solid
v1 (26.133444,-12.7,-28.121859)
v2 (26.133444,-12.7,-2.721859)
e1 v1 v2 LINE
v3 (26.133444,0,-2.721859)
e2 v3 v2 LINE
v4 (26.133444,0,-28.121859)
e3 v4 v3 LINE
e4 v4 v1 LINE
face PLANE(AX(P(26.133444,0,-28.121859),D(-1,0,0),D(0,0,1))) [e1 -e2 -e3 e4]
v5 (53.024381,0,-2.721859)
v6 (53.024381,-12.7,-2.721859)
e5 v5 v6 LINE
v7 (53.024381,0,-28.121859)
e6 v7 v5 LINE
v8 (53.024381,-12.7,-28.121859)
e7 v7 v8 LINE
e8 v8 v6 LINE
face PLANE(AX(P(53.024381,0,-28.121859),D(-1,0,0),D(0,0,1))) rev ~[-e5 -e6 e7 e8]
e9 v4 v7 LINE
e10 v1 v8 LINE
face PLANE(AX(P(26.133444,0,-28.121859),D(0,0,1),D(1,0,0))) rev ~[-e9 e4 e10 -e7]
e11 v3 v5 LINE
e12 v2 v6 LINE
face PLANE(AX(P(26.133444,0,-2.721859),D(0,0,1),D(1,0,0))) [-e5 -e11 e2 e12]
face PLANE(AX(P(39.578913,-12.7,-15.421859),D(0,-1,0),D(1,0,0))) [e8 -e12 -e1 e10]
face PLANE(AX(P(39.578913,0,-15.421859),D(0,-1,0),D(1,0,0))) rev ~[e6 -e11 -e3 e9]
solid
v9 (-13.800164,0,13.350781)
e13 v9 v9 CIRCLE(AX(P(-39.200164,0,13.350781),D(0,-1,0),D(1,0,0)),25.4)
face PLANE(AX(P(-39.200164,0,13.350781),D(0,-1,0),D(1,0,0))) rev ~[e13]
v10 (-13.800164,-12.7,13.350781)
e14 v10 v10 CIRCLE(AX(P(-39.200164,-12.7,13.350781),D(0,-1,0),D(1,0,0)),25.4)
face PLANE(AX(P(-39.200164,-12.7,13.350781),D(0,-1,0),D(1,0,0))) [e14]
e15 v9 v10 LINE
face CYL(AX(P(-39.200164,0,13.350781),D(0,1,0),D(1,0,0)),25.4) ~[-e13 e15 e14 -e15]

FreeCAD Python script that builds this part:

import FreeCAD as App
import Part
import Sketcher
from FreeCAD import Vector
Q = App.Units.Quantity


def add_polygon(sketch, points):
    """Adds a closed chain of lines whose ends are joined by coincident constraints."""
    first, n = sketch.GeometryCount, len(points)
    for a, b in zip(points, points[1:] + points[:1]):
        sketch.addGeometry(Part.LineSegment(App.Vector(*a, 0), App.Vector(*b, 0)), False)
    for i in range(n):
        sketch.addConstraint(Sketcher.Constraint("Coincident", first + i, 2, first + (i + 1) % n, 1))

doc = App.newDocument("Part")
body = doc.addObject("PartDesign::Body", "Body")
body.AllowCompound = True

# Sketch on XZ plane
sketch1 = body.newObject("Sketcher::SketchObject", "Sketch")
sketch1.AttachmentSupport = (doc.getObject("XZ_Plane"), [""])
sketch1.MapMode = "FlatFace"
sketch1.addGeometry(Part.Circle(Vector(-39, 13, 0), Vector(0, 0, 1), 25), False)  # 0
add_polygon(sketch1, [(26, -3), (26, -28), (53, -28), (53, -3)])  # lines 1-4
sketch1.addConstraint(Sketcher.Constraint("Vertical", 1))
sketch1.addConstraint(Sketcher.Constraint("Horizontal", 2))
sketch1.addConstraint(Sketcher.Constraint("Vertical", 3))
sketch1.addConstraint(Sketcher.Constraint("Horizontal", 4))
sketch1.addConstraint(Sketcher.Constraint("Diameter", 0, Q("2 in")))
sketch1.addConstraint(Sketcher.Constraint("DistanceY", 1, 2, 1, 1, Q("1 in")))
sketch1.addConstraint(Sketcher.Constraint("DistanceX", 2, 1, 2, 2, Q("26.890937 mm")))
sketch1.addConstraint(Sketcher.Constraint("DistanceY", -1, 1, 0, 3, Q("13.350781 mm")))
sketch1.addConstraint(Sketcher.Constraint("DistanceY", 1, 2, -1, 1, Q("28.121859 mm")))
sketch1.addConstraint(Sketcher.Constraint("DistanceX", -1, 1, 2, 2, Q("53.024381 mm")))
sketch1.addConstraint(Sketcher.Constraint("DistanceX", 0, 3, 1, 2, Q("65.333608 mm")))
pad1 = body.newObject("PartDesign::Pad", "Pad")
pad1.Profile = sketch1
pad1.Length = Q("0.5 in")

doc.recompute()
